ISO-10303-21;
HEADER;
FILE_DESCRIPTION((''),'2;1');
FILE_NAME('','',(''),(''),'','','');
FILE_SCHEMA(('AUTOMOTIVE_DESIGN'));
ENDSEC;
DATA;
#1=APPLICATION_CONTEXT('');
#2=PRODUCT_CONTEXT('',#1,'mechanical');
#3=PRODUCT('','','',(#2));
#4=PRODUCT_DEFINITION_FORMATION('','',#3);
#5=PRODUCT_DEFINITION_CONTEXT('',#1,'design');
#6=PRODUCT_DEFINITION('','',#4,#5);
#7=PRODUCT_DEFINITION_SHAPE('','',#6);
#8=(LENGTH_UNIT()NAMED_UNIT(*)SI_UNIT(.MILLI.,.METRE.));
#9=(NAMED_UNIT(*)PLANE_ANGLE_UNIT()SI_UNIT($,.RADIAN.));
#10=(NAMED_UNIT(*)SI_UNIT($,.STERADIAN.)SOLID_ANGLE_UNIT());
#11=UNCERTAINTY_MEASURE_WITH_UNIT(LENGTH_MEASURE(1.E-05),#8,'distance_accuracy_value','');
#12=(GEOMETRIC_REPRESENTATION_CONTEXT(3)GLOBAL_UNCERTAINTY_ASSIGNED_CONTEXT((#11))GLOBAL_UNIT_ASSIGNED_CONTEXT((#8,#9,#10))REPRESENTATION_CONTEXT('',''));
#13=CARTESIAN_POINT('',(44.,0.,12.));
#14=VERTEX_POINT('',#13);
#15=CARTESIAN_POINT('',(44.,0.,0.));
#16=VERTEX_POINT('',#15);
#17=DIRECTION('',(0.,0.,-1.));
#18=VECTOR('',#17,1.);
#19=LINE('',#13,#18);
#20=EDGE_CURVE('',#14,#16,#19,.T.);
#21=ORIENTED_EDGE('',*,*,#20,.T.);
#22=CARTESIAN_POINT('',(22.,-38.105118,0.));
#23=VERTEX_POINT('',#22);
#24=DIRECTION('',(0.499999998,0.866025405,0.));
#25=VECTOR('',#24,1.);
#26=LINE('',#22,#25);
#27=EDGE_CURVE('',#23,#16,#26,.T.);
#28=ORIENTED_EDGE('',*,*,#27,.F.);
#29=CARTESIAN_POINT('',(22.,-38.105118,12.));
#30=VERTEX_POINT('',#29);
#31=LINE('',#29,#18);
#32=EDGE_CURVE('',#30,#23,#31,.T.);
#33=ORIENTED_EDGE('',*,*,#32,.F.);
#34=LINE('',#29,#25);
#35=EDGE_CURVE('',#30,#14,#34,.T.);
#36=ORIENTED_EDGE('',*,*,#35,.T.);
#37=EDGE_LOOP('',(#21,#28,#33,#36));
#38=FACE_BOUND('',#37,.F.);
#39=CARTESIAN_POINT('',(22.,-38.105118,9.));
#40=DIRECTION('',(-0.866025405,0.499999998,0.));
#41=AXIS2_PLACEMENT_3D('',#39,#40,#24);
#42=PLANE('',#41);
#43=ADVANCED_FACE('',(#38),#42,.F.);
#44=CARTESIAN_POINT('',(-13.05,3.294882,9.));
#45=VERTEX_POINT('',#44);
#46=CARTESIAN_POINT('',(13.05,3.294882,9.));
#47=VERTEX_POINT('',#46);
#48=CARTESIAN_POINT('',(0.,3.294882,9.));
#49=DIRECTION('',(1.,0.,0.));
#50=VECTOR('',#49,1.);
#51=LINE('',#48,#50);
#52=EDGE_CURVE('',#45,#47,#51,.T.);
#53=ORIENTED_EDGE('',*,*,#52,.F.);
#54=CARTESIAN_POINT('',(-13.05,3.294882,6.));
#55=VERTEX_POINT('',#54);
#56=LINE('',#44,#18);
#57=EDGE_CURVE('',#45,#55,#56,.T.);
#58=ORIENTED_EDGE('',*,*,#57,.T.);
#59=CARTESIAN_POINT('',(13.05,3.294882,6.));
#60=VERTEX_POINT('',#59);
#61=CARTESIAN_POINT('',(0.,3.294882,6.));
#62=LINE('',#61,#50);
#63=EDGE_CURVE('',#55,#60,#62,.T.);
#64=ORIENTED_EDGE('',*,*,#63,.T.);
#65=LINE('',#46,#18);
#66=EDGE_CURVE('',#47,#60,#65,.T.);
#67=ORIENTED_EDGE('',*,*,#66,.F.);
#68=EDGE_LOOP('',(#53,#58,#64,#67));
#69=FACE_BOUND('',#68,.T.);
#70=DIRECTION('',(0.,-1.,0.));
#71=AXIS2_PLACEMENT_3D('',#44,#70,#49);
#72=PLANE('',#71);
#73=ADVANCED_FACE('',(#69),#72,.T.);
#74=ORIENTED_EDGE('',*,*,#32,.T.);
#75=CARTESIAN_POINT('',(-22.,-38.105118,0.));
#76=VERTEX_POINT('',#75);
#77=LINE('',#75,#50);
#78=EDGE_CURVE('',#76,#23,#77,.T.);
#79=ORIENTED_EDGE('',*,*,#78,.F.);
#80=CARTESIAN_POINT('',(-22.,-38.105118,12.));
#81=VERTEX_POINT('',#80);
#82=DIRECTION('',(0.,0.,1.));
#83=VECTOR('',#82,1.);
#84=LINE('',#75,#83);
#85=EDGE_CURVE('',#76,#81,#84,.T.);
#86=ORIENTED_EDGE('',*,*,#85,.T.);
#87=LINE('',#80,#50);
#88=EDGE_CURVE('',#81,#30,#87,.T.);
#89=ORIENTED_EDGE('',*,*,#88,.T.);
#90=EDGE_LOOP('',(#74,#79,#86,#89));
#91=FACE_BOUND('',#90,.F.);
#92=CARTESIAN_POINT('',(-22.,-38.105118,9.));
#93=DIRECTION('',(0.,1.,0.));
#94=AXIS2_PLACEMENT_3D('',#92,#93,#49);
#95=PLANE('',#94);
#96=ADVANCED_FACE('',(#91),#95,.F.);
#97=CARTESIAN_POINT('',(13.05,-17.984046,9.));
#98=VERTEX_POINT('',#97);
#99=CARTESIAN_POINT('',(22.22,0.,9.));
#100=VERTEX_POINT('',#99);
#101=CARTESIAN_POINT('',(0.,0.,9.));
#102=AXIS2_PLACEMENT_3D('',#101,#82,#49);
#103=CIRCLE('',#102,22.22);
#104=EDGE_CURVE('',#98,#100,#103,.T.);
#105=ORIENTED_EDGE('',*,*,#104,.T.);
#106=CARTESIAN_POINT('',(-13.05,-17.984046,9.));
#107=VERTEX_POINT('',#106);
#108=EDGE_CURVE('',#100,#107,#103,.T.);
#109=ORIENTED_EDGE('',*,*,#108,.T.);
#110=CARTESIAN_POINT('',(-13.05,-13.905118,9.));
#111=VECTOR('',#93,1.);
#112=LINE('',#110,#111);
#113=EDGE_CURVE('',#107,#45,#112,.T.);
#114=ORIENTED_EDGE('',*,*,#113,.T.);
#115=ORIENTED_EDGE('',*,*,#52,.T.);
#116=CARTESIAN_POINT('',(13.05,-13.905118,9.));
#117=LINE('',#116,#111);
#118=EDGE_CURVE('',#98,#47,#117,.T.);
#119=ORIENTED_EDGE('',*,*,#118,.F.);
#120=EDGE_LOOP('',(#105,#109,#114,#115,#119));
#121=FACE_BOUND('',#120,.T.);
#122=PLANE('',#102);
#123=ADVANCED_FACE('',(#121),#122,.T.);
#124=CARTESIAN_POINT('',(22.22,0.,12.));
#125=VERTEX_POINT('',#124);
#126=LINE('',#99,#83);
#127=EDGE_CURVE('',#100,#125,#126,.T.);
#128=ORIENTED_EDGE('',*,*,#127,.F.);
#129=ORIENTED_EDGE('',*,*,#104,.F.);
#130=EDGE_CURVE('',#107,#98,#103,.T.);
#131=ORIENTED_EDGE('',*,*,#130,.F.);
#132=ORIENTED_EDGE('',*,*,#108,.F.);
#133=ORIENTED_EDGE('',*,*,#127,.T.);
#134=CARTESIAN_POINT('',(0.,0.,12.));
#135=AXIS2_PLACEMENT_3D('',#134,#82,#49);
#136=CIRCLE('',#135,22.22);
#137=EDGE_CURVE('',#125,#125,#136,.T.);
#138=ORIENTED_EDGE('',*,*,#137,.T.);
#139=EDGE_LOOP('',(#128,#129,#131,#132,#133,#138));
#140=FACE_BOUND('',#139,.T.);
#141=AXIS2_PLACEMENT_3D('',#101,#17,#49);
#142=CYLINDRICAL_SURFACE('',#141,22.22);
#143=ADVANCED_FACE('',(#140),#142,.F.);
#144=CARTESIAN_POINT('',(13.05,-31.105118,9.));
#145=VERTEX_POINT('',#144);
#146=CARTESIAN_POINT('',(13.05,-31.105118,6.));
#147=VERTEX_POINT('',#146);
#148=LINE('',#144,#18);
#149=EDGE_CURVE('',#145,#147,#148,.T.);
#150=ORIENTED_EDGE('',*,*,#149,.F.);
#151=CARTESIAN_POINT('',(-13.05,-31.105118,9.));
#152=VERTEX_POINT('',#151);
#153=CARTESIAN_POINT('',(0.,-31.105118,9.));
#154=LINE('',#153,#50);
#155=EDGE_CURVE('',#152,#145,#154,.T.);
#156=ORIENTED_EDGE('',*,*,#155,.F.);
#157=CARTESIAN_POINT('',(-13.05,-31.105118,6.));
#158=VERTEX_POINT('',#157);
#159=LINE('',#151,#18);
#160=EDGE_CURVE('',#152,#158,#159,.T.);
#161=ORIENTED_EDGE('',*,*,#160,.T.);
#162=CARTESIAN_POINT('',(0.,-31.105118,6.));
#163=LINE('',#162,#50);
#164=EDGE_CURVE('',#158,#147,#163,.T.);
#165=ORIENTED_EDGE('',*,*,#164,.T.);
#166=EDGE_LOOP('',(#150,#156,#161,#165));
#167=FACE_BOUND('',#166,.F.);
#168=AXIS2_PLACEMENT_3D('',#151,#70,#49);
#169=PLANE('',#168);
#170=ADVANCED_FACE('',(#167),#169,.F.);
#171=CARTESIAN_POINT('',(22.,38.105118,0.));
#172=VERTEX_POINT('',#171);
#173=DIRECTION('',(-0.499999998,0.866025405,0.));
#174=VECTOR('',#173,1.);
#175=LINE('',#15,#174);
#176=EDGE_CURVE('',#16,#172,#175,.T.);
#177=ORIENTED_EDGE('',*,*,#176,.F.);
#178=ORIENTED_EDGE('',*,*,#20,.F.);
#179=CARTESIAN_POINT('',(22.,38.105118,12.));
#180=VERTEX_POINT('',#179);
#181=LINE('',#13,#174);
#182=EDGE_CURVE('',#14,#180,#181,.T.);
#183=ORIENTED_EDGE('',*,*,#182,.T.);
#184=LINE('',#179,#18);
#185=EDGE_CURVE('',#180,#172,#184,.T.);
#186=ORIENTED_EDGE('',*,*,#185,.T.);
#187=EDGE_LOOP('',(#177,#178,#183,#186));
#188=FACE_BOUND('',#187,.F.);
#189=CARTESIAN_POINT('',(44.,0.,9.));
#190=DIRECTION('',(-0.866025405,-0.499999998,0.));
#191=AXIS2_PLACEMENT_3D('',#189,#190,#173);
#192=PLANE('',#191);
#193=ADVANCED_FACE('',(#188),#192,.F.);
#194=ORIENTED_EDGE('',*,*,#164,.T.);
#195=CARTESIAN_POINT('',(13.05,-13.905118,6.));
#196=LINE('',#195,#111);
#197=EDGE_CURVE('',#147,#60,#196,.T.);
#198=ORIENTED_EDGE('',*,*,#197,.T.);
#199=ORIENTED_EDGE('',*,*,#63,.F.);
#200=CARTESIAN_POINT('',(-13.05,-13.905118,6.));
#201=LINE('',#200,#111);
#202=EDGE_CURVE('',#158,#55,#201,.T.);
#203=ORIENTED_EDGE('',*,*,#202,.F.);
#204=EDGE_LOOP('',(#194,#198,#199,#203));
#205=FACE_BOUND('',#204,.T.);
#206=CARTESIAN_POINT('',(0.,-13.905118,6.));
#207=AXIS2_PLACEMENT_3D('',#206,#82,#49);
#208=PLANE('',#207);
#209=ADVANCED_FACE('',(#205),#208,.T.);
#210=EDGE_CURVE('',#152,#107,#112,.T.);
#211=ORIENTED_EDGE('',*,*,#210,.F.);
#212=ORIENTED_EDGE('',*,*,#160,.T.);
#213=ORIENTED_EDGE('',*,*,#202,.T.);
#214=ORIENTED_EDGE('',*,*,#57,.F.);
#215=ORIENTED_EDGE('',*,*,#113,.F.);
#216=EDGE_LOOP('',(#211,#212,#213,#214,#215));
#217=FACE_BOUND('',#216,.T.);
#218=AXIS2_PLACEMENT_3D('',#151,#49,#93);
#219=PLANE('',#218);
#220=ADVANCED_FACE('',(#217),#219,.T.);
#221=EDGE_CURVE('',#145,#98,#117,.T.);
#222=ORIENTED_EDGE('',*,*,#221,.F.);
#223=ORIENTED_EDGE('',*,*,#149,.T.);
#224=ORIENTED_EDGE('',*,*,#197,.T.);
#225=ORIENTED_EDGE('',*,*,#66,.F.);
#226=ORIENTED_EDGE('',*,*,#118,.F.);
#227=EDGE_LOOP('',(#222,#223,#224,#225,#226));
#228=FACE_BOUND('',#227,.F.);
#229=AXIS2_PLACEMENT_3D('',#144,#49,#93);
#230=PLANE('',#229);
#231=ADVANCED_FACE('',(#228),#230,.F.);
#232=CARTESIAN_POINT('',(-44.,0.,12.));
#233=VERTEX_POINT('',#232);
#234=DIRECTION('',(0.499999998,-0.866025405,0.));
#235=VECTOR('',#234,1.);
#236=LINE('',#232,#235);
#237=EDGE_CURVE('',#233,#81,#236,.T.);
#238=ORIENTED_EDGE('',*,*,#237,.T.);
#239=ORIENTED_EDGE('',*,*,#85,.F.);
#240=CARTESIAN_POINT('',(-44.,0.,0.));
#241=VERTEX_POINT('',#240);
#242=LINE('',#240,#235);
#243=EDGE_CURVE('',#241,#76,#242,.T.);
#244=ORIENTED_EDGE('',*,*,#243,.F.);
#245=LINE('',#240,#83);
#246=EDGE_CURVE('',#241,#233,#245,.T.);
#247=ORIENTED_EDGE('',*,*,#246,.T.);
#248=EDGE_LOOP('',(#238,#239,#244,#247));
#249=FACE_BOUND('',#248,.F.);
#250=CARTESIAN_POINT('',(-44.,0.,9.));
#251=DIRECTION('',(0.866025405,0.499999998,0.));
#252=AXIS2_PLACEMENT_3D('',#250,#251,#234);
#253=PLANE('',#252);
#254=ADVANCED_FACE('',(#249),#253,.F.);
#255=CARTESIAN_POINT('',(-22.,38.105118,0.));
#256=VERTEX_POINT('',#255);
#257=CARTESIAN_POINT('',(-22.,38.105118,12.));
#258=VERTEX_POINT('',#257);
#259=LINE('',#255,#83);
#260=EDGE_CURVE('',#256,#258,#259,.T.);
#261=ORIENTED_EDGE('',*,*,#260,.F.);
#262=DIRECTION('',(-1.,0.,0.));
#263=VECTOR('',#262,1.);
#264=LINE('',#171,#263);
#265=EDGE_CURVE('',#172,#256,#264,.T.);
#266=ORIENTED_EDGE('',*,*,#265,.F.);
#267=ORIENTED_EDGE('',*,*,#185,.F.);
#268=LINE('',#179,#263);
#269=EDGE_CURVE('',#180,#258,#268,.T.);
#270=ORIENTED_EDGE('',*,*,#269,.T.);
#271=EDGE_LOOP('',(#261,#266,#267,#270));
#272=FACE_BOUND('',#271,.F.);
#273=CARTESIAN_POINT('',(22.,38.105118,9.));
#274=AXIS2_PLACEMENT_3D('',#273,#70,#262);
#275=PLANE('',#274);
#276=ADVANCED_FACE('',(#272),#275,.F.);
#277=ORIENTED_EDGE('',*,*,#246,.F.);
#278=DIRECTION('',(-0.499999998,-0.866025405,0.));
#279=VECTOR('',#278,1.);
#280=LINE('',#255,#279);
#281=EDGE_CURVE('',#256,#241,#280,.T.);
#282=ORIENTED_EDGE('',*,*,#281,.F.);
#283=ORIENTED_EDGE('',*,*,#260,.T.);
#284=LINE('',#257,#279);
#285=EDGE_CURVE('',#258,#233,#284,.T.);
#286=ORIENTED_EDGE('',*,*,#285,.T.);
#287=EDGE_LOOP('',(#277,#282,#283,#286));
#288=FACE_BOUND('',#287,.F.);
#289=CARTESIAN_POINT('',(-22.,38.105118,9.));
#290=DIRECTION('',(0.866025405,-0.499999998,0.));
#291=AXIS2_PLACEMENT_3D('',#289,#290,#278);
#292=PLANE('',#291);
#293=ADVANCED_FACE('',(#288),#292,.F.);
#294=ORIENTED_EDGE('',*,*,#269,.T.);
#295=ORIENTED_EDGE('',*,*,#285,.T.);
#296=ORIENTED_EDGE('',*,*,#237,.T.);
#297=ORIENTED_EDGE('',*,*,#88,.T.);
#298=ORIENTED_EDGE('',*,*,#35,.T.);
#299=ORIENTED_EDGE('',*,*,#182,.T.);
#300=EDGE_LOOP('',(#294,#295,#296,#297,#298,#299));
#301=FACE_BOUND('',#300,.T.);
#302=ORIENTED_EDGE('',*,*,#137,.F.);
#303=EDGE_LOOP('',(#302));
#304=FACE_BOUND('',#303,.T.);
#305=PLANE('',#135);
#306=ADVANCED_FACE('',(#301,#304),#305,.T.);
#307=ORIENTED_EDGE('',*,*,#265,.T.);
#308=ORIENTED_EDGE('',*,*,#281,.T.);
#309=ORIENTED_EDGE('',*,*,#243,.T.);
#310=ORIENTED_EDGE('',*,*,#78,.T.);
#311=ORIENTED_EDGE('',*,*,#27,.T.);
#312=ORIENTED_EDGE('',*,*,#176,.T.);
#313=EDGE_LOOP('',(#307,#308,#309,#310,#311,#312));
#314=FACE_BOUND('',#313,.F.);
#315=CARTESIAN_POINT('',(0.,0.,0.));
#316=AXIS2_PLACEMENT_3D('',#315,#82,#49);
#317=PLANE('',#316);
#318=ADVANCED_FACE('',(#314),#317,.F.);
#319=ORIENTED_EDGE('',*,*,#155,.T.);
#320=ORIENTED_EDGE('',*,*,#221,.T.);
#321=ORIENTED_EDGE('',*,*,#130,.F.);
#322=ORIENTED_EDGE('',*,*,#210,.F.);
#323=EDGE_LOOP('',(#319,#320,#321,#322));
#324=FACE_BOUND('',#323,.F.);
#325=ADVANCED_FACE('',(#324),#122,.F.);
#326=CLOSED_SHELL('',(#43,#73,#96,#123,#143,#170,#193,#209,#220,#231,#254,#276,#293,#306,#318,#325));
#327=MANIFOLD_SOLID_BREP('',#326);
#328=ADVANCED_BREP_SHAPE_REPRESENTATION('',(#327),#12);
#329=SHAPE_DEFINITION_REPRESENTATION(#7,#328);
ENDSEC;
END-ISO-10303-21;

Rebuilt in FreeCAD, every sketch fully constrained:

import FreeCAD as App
import Part
import Sketcher

V = App.Vector
Q = App.Units.Quantity

doc = App.newDocument("Part")
body = doc.addObject("PartDesign::Body", "Body")

# Sketch on XY plane
sketch1 = body.newObject("Sketcher::SketchObject", "Sketch")
sketch1.AttachmentSupport = (doc.getObject("XY_Plane"), [""])
sketch1.MapMode = "FlatFace"
sketch1.addGeometry([
    Part.LineSegment(V(44, 0, 0), V(22, 38.105118, 0)),  # 0
    Part.LineSegment(V(22, 38.105118, 0), V(-22, 38.105118, 0)),  # 1
    Part.LineSegment(V(-22, 38.105118, 0), V(-44, 0, 0)),  # 2
    Part.LineSegment(V(-44, 0, 0), V(-22, -38.105118, 0)),  # 3
    Part.LineSegment(V(-22, -38.105118, 0), V(22, -38.105118, 0)),  # 4
    Part.LineSegment(V(22, -38.105118, 0), V(44, 0, 0)),  # 5
], False)
sketch1.addConstraint([
    Sketcher.Constraint("Coincident", 0, 2, 1, 1),
    Sketcher.Constraint("Coincident", 1, 2, 2, 1),
    Sketcher.Constraint("Coincident", 2, 2, 3, 1),
    Sketcher.Constraint("Coincident", 3, 2, 4, 1),
    Sketcher.Constraint("Coincident", 4, 2, 5, 1),
    Sketcher.Constraint("Coincident", 5, 2, 0, 1),
    Sketcher.Constraint("Horizontal", 1),
    Sketcher.Constraint("Horizontal", 4),
    Sketcher.Constraint("Symmetric", 0, 2, 3, 2, -1, 1),
    Sketcher.Constraint("Symmetric", 2, 2, 5, 2, -1, 1),
    Sketcher.Constraint("PointOnObject", 2, 2, -1),
    Sketcher.Constraint("Parallel", 2, 5),
    Sketcher.Constraint("Vertical", 1, 2, 3, 2),
    Sketcher.Constraint("DistanceX", 1, 2, 1, 1, Q("44 mm")),
    Sketcher.Constraint("Angle", 0, Q("120 deg")),
    Sketcher.Constraint("Distance", 0, Q("44 mm")),
])
pad1 = body.newObject("PartDesign::Pad", "Pad")
pad1.Profile = sketch1
pad1.Length = 9

# Sketch on XY plane
sketch2 = body.newObject("Sketcher::SketchObject", "Sketch001")
sketch2.AttachmentSupport = (doc.getObject("XY_Plane"), [""])
sketch2.MapMode = "FlatFace"
sketch2.AttachmentOffset = App.Placement(V(0, 0, 9), App.Rotation())
sketch2.addGeometry([
    Part.LineSegment(V(-13.05, 3.294882, 0), V(-13.05, -31.105118, 0)),
    Part.LineSegment(V(-13.05, -31.105118, 0), V(13.05, -31.105118, 0)),
    Part.LineSegment(V(13.05, -31.105118, 0), V(13.05, 3.294882, 0)),
    Part.LineSegment(V(13.05, 3.294882, 0), V(-13.05, 3.294882, 0)),
], False)
sketch2.addConstraint([
    Sketcher.Constraint("Coincident", 0, 2, 1, 1),
    Sketcher.Constraint("Coincident", 1, 2, 2, 1),
    Sketcher.Constraint("Coincident", 2, 2, 3, 1),
    Sketcher.Constraint("Coincident", 3, 2, 0, 1),
    Sketcher.Constraint("Vertical", 0),
    Sketcher.Constraint("Horizontal", 1),
    Sketcher.Constraint("Vertical", 2),
    Sketcher.Constraint("Horizontal", 3),
    Sketcher.Constraint("DistanceX", 1, 1, 1, 2, Q("26.1 mm")),
    Sketcher.Constraint("DistanceY", 0, 2, 0, 1, Q("34.4 mm")),
    Sketcher.Constraint("DistanceX", 0, 2, -1, 1, Q("13.05 mm")),
    Sketcher.Constraint("DistanceY", 0, 2, -1, 1, Q("31.105118 mm")),
])
pocket1 = body.newObject("PartDesign::Pocket", "Pocket")
pocket1.Profile = sketch2
pocket1.Length = 3

# Sketch on XY plane
sketch3 = body.newObject("Sketcher::SketchObject", "Sketch002")
sketch3.AttachmentSupport = (doc.getObject("XY_Plane"), [""])
sketch3.MapMode = "FlatFace"
sketch3.AttachmentOffset = App.Placement(V(0, 0, 9), App.Rotation())
sketch3.addGeometry([
    Part.LineSegment(V(22, 38.105118, 0), V(-22, 38.105118, 0)),  # 0
    Part.LineSegment(V(-22, 38.105118, 0), V(-44, 0, 0)),  # 1
    Part.LineSegment(V(-44, 0, 0), V(-22, -38.105118, 0)),  # 2
    Part.LineSegment(V(-22, -38.105118, 0), V(22, -38.105118, 0)),  # 3
    Part.LineSegment(V(22, -38.105118, 0), V(44, 0, 0)),  # 4
    Part.LineSegment(V(44, 0, 0), V(22, 38.105118, 0)),  # 5
    Part.Circle(V(0, 0, 0), V(0, 0, 1), 22.22),  # 6
], False)
sketch3.addConstraint([
    Sketcher.Constraint("Coincident", 0, 2, 1, 1),
    Sketcher.Constraint("Coincident", 1, 2, 2, 1),
    Sketcher.Constraint("Coincident", 2, 2, 3, 1),
    Sketcher.Constraint("Coincident", 3, 2, 4, 1),
    Sketcher.Constraint("Coincident", 4, 2, 5, 1),
    Sketcher.Constraint("Coincident", 5, 2, 0, 1),
    Sketcher.Constraint("Horizontal", 0),
    Sketcher.Constraint("Horizontal", 3),
    Sketcher.Constraint("Coincident", 6, 3, -1, 1),
    Sketcher.Constraint("Symmetric", 0, 2, 3, 2, -1, 1),
    Sketcher.Constraint("Symmetric", 1, 2, 4, 2, -1, 1),
    Sketcher.Constraint("PointOnObject", 1, 2, -1),
    Sketcher.Constraint("Parallel", 2, 5),
    Sketcher.Constraint("Vertical", 0, 2, 2, 2),
    Sketcher.Constraint("Diameter", 6, Q("44.44 mm")),
    Sketcher.Constraint("DistanceX", 0, 2, 0, 1, Q("44 mm")),
    Sketcher.Constraint("Angle", 1, Q("-120 deg")),
    Sketcher.Constraint("Distance", 1, Q("44 mm")),
])
pad2 = body.newObject("PartDesign::Pad", "Pad001")
pad2.Profile = sketch3
pad2.Length = 3

doc.recompute()
